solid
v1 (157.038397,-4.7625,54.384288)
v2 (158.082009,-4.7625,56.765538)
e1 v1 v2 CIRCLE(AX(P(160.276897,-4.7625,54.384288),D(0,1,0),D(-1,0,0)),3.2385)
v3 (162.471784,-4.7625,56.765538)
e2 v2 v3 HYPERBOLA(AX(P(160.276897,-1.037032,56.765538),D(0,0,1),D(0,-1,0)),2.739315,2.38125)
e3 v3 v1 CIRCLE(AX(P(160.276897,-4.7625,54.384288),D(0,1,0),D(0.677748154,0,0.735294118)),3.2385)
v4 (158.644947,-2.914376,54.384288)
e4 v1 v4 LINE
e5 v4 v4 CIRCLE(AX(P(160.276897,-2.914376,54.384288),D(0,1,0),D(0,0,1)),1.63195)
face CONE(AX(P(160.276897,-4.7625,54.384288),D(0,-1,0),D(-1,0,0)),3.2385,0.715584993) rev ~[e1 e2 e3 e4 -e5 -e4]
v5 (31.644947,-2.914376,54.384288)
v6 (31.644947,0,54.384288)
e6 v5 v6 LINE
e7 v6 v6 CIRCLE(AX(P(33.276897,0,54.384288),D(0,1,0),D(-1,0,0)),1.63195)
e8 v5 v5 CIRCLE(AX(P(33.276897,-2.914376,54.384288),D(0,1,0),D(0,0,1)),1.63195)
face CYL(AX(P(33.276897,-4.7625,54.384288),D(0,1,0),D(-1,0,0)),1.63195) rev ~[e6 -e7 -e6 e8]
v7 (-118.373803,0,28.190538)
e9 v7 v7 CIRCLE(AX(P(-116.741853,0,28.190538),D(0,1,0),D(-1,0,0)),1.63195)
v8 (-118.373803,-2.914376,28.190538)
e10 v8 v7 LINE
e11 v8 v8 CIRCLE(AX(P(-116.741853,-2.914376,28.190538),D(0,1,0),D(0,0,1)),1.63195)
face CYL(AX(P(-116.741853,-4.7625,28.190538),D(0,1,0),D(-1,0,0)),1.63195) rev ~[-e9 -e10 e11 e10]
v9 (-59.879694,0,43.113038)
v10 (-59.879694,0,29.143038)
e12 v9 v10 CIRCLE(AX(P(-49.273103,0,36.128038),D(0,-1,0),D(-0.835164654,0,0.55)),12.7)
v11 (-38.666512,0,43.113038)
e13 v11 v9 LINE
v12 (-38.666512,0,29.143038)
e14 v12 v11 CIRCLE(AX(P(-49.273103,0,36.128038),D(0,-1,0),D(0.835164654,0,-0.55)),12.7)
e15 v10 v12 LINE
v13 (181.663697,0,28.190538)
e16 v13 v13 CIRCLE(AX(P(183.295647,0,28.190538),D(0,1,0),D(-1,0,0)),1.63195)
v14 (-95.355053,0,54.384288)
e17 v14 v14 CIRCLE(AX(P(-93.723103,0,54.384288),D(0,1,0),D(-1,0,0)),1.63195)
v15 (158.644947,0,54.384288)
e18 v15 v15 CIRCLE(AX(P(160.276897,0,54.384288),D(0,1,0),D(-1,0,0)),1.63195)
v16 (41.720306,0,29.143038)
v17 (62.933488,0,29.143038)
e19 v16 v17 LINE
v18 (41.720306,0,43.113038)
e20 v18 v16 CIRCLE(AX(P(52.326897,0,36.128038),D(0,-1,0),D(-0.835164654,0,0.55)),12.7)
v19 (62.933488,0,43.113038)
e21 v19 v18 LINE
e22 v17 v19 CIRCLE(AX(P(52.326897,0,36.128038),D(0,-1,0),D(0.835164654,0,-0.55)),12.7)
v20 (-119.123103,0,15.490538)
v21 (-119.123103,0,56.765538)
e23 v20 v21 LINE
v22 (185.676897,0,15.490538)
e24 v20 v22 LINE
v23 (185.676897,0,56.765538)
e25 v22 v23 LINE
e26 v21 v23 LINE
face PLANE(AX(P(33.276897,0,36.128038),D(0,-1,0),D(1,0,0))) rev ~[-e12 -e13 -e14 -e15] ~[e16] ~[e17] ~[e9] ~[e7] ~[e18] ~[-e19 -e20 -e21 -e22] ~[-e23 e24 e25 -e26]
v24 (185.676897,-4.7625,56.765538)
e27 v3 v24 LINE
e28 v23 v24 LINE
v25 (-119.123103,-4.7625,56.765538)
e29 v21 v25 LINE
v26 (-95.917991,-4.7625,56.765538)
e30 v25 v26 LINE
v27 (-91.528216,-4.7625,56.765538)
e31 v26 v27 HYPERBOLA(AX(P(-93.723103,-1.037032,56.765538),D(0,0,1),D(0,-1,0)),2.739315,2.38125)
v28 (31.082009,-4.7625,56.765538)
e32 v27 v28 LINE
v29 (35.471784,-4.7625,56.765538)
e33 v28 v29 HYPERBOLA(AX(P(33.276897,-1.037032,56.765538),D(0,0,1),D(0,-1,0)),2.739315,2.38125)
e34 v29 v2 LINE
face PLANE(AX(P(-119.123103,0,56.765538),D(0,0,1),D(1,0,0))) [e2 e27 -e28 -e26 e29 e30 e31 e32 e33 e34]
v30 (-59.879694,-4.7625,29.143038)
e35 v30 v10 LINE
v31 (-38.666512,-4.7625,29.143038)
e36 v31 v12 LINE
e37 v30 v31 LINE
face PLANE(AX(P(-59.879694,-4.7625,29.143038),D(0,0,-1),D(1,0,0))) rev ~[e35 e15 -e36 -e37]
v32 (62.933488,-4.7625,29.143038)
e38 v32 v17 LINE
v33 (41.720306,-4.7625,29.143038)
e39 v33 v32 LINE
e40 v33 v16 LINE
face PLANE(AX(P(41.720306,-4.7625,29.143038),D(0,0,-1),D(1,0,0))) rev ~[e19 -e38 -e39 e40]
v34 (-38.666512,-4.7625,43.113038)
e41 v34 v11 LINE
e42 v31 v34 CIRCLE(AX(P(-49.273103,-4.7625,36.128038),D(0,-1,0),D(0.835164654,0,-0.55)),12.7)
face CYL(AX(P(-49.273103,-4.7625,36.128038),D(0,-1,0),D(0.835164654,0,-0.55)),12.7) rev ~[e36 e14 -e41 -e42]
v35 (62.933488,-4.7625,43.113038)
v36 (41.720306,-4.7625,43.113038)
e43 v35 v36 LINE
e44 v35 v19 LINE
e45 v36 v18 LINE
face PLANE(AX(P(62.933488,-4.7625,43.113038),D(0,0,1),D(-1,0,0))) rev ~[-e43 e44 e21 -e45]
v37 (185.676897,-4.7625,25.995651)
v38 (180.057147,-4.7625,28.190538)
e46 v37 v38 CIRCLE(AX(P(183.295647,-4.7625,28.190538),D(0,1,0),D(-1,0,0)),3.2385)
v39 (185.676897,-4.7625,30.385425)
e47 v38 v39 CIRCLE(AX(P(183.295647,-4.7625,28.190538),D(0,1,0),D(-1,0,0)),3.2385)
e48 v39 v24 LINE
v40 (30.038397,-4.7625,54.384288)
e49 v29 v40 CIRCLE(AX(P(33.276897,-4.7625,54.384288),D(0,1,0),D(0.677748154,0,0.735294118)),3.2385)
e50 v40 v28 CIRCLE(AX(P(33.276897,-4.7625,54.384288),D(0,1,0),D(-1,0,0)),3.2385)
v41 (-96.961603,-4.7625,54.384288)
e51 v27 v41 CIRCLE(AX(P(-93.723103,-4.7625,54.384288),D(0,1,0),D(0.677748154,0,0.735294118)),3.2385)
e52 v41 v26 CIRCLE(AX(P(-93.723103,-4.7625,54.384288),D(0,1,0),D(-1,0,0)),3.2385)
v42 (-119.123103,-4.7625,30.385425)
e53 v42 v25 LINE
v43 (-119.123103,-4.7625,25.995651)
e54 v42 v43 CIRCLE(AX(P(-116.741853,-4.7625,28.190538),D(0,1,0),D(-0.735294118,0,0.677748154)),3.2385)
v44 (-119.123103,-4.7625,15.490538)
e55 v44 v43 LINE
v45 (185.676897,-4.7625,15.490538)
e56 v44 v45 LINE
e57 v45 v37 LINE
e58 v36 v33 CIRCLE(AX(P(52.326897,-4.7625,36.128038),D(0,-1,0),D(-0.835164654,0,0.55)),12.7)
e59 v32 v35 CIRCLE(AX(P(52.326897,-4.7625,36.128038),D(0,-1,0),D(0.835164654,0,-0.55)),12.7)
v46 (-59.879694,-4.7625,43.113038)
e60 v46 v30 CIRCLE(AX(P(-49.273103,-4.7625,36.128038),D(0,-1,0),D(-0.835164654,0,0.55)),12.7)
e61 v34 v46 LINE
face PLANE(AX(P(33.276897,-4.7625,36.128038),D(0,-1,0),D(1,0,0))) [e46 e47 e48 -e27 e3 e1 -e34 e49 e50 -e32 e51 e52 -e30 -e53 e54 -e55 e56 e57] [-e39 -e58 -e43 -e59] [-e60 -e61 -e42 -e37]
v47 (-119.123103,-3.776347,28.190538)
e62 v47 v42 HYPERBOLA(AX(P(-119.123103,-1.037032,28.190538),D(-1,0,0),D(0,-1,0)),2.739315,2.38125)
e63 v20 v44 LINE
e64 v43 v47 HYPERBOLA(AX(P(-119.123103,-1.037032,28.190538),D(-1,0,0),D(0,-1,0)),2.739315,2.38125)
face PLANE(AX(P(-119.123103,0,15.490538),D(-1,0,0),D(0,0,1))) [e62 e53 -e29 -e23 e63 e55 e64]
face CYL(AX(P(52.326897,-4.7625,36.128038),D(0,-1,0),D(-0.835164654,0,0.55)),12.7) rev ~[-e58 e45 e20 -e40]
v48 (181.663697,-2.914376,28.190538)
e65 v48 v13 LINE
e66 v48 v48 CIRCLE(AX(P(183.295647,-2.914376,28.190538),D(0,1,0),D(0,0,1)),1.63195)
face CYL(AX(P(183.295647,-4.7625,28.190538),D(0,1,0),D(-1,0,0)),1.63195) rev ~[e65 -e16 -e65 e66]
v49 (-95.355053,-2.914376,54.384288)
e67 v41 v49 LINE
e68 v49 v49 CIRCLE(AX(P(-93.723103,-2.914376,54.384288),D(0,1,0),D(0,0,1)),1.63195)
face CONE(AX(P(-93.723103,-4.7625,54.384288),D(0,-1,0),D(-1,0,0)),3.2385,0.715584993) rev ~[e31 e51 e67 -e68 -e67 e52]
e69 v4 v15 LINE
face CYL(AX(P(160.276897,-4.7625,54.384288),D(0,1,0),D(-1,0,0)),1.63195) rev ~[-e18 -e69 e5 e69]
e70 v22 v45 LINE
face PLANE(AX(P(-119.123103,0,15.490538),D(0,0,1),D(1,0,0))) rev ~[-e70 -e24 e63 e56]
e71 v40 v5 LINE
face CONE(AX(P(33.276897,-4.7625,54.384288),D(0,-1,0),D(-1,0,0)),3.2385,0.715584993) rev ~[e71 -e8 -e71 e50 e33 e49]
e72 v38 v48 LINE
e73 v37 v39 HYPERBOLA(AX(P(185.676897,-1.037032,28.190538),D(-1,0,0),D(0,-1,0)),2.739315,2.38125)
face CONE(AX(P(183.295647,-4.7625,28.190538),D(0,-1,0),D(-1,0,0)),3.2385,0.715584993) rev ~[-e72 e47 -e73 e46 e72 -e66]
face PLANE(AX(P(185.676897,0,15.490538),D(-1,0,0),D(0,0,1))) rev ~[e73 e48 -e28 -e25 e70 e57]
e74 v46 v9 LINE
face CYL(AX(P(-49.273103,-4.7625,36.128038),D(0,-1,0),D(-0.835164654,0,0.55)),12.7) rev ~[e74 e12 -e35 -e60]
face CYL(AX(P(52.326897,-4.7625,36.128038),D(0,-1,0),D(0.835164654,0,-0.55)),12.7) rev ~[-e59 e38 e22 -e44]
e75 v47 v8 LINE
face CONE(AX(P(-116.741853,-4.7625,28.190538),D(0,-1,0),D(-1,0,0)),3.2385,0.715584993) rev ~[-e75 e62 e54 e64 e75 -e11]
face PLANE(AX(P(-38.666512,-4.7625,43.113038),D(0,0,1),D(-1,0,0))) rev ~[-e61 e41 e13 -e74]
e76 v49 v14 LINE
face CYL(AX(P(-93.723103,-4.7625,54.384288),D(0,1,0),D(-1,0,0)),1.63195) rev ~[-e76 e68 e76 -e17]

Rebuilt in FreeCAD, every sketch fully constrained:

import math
import FreeCAD as App
import Part
import Sketcher
from FreeCAD import Vector
Q = App.Units.Quantity

doc = App.newDocument("Part")
body = doc.addObject("PartDesign::Body", "Body")

# Sketch on XZ plane
sketch1 = body.newObject("Sketcher::SketchObject", "Sketch")
sketch1.AttachmentSupport = (doc.getObject("XZ_Plane"), [""])
sketch1.MapMode = "FlatFace"
sketch1.addGeometry([
    Part.LineSegment(Vector(-119, 57, 0), Vector(-119, 15, 0)),
    Part.LineSegment(Vector(-119, 15, 0), Vector(186, 15, 0)),
    Part.LineSegment(Vector(186, 15, 0), Vector(186, 57, 0)),
    Part.LineSegment(Vector(186, 57, 0), Vector(-119, 57, 0)),
], False)
sketch1.addConstraint([
    Sketcher.Constraint("Coincident", 0, 2, 1, 1),
    Sketcher.Constraint("Coincident", 1, 2, 2, 1),
    Sketcher.Constraint("Coincident", 2, 2, 3, 1),
    Sketcher.Constraint("Coincident", 3, 2, 0, 1),
    Sketcher.Constraint("Vertical", 0),
    Sketcher.Constraint("Horizontal", 1),
    Sketcher.Constraint("Vertical", 2),
    Sketcher.Constraint("Horizontal", 3),
    Sketcher.Constraint("DistanceX", 1, 1, 1, 2, Q("12 in")),
    Sketcher.Constraint("DistanceY", 0, 2, 0, 1, Q("1.625 in")),
    Sketcher.Constraint("DistanceX", 0, 2, -1, 1, 119.123103),
    Sketcher.Constraint("DistanceY", -1, 1, 0, 2, 15.490538),
])
pad1 = body.newObject("PartDesign::Pad", "Pad")
pad1.Profile = sketch1
pad1.Length = Q("0.1875 in")

# Sketch on XZ plane
sketch2 = body.newObject("Sketcher::SketchObject", "Sketch001")
sketch2.AttachmentSupport = (doc.getObject("XZ_Plane"), [""])
sketch2.MapMode = "FlatFace"
sketch2.AttachmentOffset = App.Placement(Vector(0, 0, 0.1875 * 25.4), App.Rotation())
sketch2.addGeometry([
    Part.Circle(Vector(-93.7, 54.4, 0), Vector(0, 0, 1), 1.6),  # 0
    Part.Circle(Vector(-116.7, 28.2, 0), Vector(0, 0, 1), 1.6),  # 1
    Part.Circle(Vector(33.3, 54.4, 0), Vector(0, 0, 1), 1.6),  # 2
    Part.Circle(Vector(160.3, 54.4, 0), Vector(0, 0, 1), 1.6),  # 3
    Part.Circle(Vector(183.3, 28.2, 0), Vector(0, 0, 1), 1.6),  # 4
], False)
sketch2.addConstraint([
    Sketcher.Constraint("Equal", 0, 1),
    Sketcher.Constraint("Equal", 1, 2),
    Sketcher.Constraint("Equal", 2, 3),
    Sketcher.Constraint("Equal", 3, 4),
    Sketcher.Constraint("Horizontal", 0, 3, 2, 3),
    Sketcher.Constraint("Horizontal", 2, 3, 3, 3),
    Sketcher.Constraint("Horizontal", 1, 3, 4, 3),
    Sketcher.Constraint("DistanceX", 0, 3, 2, 3, Q("5 in")),
    Sketcher.Constraint("DistanceX", 2, 3, 3, 3, Q("5 in")),
    Sketcher.Constraint("Diameter", 0, Q("0.1285 in")),
    Sketcher.Constraint("DistanceX", 1, 3, 0, 3, Q("0.90625 in")),
    Sketcher.Constraint("DistanceY", 1, 3, 0, 3, Q("1.03125 in")),
    Sketcher.Constraint("DistanceX", 3, 3, 4, 3, Q("0.90625 in")),
    Sketcher.Constraint("DistanceX", 0, 3, -1, 1, 93.723103),
    Sketcher.Constraint("DistanceY", -1, 1, 0, 3, 54.384288),
])
doc.recompute()
hole = body.newObject("PartDesign::Hole", "Hole")
hole.Profile = sketch2
hole.ThreadType = "None"
hole.Diameter = Q("0.1285 in")
hole.DepthType = "Dimension"
hole.Depth = Q("0.575 in")
hole.DrillPoint = "Angled"
hole.DrillPointAngle = 118
hole.HoleCutType = "Countersink"
hole.HoleCutDiameter = Q("0.255 in")
hole.HoleCutCountersinkAngle = 82

# Sketch on XZ plane
sketch3 = body.newObject("Sketcher::SketchObject", "Sketch002")
sketch3.AttachmentSupport = (doc.getObject("XZ_Plane"), [""])
sketch3.MapMode = "FlatFace"
sketch3.AttachmentOffset = App.Placement(Vector(0, 0, 0.1875 * 25.4), App.Rotation())
sketch3.addGeometry([
    Part.LineSegment(Vector(-39, 43, 0), Vector(-60, 43, 0)),  # 0
    Part.ArcOfCircle(Part.Circle(Vector(-49, 36, 0), Vector(0, 0, 1), 13), math.radians(147), math.radians(213)),  # 1
    Part.LineSegment(Vector(-60, 29, 0), Vector(-39, 29, 0)),  # 2
    Part.ArcOfCircle(Part.Circle(Vector(-49, 36, 0), Vector(0, 0, 1), 13), math.radians(-33), math.radians(33)),  # 3
    Part.ArcOfCircle(Part.Circle(Vector(52, 36, 0), Vector(0, 0, 1), 13), math.radians(-33), math.radians(33)),  # 4
    Part.LineSegment(Vector(63, 43, 0), Vector(42, 43, 0)),  # 5
    Part.ArcOfCircle(Part.Circle(Vector(52, 36, 0), Vector(0, 0, 1), 13), math.radians(147), math.radians(213)),  # 6
    Part.LineSegment(Vector(42, 29, 0), Vector(63, 29, 0)),  # 7
], False)
sketch3.addConstraint([
    Sketcher.Constraint("Coincident", 0, 2, 1, 1),
    Sketcher.Constraint("Coincident", 1, 2, 2, 1),
    Sketcher.Constraint("Coincident", 2, 2, 3, 1),
    Sketcher.Constraint("Coincident", 3, 2, 0, 1),
    Sketcher.Constraint("Coincident", 4, 2, 5, 1),
    Sketcher.Constraint("Coincident", 5, 2, 6, 1),
    Sketcher.Constraint("Coincident", 6, 2, 7, 1),
    Sketcher.Constraint("Coincident", 7, 2, 4, 1),
    Sketcher.Constraint("Horizontal", 0),
    Sketcher.Constraint("Horizontal", 2),
    Sketcher.Constraint("Horizontal", 5),
    Sketcher.Constraint("Horizontal", 7),
    Sketcher.Constraint("Coincident", 3, 3, 1, 3),
    Sketcher.Constraint("Coincident", 6, 3, 4, 3),
    Sketcher.Constraint("Equal", 1, 3),
    Sketcher.Constraint("Equal", 3, 4),
    Sketcher.Constraint("Equal", 4, 6),
    Sketcher.Constraint("Horizontal", 3, 3, 4, 3),
    Sketcher.Constraint("Horizontal", 3, 2, 4, 2),
    Sketcher.Constraint("Horizontal", 2, 2, 6, 2),
    Sketcher.Constraint("Vertical", 0, 2, 1, 2),
    Sketcher.Constraint("Radius", 1, Q("0.5 in")),
    Sketcher.Constraint("DistanceX", 1, 3, 4, 3, Q("4 in")),
    Sketcher.Constraint("DistanceY", 1, 2, 0, 2, Q("0.55 in")),
    Sketcher.Constraint("DistanceX", 1, 3, -1, 1, 49.273103),
    Sketcher.Constraint("DistanceY", -1, 1, 1, 3, 36.128038),
])
pocket1 = body.newObject("PartDesign::Pocket", "Pocket")
pocket1.Profile = sketch3
pocket1.Length = Q("1 in")

doc.recompute()
